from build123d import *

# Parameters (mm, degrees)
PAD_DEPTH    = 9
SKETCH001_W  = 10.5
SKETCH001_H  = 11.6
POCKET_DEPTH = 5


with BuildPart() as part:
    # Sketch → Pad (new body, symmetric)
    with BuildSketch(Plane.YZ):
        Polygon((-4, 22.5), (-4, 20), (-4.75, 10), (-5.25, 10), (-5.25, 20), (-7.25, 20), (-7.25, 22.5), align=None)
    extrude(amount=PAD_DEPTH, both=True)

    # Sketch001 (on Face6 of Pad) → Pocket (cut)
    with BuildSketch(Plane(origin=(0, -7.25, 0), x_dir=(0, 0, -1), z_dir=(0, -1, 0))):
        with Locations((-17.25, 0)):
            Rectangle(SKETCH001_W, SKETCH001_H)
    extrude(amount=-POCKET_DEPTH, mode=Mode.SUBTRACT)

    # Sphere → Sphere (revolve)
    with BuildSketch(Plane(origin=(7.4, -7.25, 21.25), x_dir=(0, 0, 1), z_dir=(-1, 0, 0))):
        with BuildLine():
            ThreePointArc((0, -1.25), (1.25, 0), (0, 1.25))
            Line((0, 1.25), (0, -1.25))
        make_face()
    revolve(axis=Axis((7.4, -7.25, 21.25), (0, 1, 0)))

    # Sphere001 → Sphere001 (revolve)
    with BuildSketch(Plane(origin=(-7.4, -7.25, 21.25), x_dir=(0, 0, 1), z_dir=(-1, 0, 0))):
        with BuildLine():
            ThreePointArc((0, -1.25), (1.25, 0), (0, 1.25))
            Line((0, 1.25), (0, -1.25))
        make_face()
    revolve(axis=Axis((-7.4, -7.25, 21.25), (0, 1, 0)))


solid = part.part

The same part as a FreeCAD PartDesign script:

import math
import FreeCAD as App
import Part
import Sketcher

doc = App.newDocument("Part")
body = doc.addObject("PartDesign::Body", "Body")

# Sketch on YZ plane
sketch1 = body.newObject("Sketcher::SketchObject", "Sketch")
sketch1.AttachmentSupport = (doc.getObject("YZ_Plane"), [""])
sketch1.MapMode = "FlatFace"
sketch1.addGeometry(Part.LineSegment(App.Vector(-4, 20, 0), App.Vector(-4, 22.5, 0)), False)
sketch1.addGeometry(Part.LineSegment(App.Vector(-4, 22.5, 0), App.Vector(-7.2, 22.5, 0)), False)
sketch1.addGeometry(Part.LineSegment(App.Vector(-7.2, 22.5, 0), App.Vector(-7.2, 20, 0)), False)
sketch1.addGeometry(Part.LineSegment(App.Vector(-7.2, 20, 0), App.Vector(-5.2, 20, 0)), False)
sketch1.addGeometry(Part.LineSegment(App.Vector(-5.2, 20, 0), App.Vector(-5.2, 10, 0)), False)
sketch1.addGeometry(Part.LineSegment(App.Vector(-5.2, 10, 0), App.Vector(-4.8, 10, 0)), False)
sketch1.addGeometry(Part.LineSegment(App.Vector(-4.8, 10, 0), App.Vector(-4, 20, 0)), False)
sketch1.addConstraint(Sketcher.Constraint("Coincident", 0, 2, 1, 1))
sketch1.addConstraint(Sketcher.Constraint("Coincident", 1, 2, 2, 1))
sketch1.addConstraint(Sketcher.Constraint("Coincident", 2, 2, 3, 1))
sketch1.addConstraint(Sketcher.Constraint("Coincident", 3, 2, 4, 1))
sketch1.addConstraint(Sketcher.Constraint("Coincident", 4, 2, 5, 1))
sketch1.addConstraint(Sketcher.Constraint("Coincident", 5, 2, 6, 1))
sketch1.addConstraint(Sketcher.Constraint("Coincident", 6, 2, 0, 1))
sketch1.addConstraint(Sketcher.Constraint("Vertical", 0))
sketch1.addConstraint(Sketcher.Constraint("Horizontal", 1))
sketch1.addConstraint(Sketcher.Constraint("Vertical", 2))
sketch1.addConstraint(Sketcher.Constraint("Horizontal", 3))
sketch1.addConstraint(Sketcher.Constraint("Vertical", 4))
sketch1.addConstraint(Sketcher.Constraint("Horizontal", 5))
sketch1.addConstraint(Sketcher.Constraint("Horizontal", 3, 2, 6, 2))
sketch1.addConstraint(Sketcher.Constraint("DistanceX", 3, 1, 3, 2, 2.0))
sketch1.addConstraint(Sketcher.Constraint("DistanceY", 4, 2, 4, 1, 10.0))
sketch1.addConstraint(Sketcher.Constraint("DistanceX", 5, 1, 5, 2, 0.5))
sketch1.addConstraint(Sketcher.Constraint("DistanceY", 0, 1, 0, 2, 2.5))
sketch1.addConstraint(Sketcher.Constraint("DistanceX", 0, 2, -1, 1, 4.0))
sketch1.addConstraint(Sketcher.Constraint("DistanceY", -1, 1, 2, 2, 20.0))
sketch1.addConstraint(Sketcher.Constraint("DistanceX", 1, 2, 1, 1, 3.25))
pad1 = body.newObject("PartDesign::Pad", "Pad")
pad1.Profile = sketch1
pad1.Length = 18
pad1.Midplane = True

# Sketch on XZ plane
sketch2 = body.newObject("Sketcher::SketchObject", "Sketch001")
sketch2.AttachmentSupport = (doc.getObject("XZ_Plane"), [""])
sketch2.MapMode = "FlatFace"
sketch2.AttachmentOffset = App.Placement(App.Vector(0, 0, 7.25), App.Rotation())
sketch2.addGeometry(Part.LineSegment(App.Vector(6, 22, 0), App.Vector(-6, 22, 0)), False)
sketch2.addGeometry(Part.LineSegment(App.Vector(-6, 22, 0), App.Vector(-6, 12, 0)), False)
sketch2.addGeometry(Part.LineSegment(App.Vector(-6, 12, 0), App.Vector(6, 12, 0)), False)
sketch2.addGeometry(Part.LineSegment(App.Vector(6, 12, 0), App.Vector(6, 22, 0)), False)
sketch2.addConstraint(Sketcher.Constraint("Coincident", 0, 2, 1, 1))
sketch2.addConstraint(Sketcher.Constraint("Coincident", 1, 2, 2, 1))
sketch2.addConstraint(Sketcher.Constraint("Coincident", 2, 2, 3, 1))
sketch2.addConstraint(Sketcher.Constraint("Coincident", 3, 2, 0, 1))
sketch2.addConstraint(Sketcher.Constraint("Horizontal", 0))
sketch2.addConstraint(Sketcher.Constraint("Vertical", 1))
sketch2.addConstraint(Sketcher.Constraint("Horizontal", 2))
sketch2.addConstraint(Sketcher.Constraint("Vertical", 3))
sketch2.addConstraint(Sketcher.Constraint("DistanceX", 0, 2, 0, 1, 11.6))
sketch2.addConstraint(Sketcher.Constraint("DistanceY", 1, 2, 1, 1, 10.5))
sketch2.addConstraint(Sketcher.Constraint("DistanceY", -1, 1, 1, 2, 12.0))
sketch2.addConstraint(Sketcher.Constraint("DistanceX", 0, 2, -1, 1, 5.8))
pocket1 = body.newObject("PartDesign::Pocket", "Pocket")
pocket1.Profile = sketch2
pocket1.Length = 5

# Sketch on YZ plane
sketch3 = body.newObject("Sketcher::SketchObject", "Sketch002")
sketch3.AttachmentSupport = (doc.getObject("YZ_Plane"), [""])
sketch3.MapMode = "FlatFace"
sketch3.AttachmentOffset = App.Placement(App.Vector(0, 0, 7.4), App.Rotation())
sketch3.addGeometry(Part.ArcOfCircle(Part.Circle(App.Vector(-7.2, 21.2, 0), App.Vector(0, 0, 1), 1.2), math.radians(0), math.radians(180)), False)
sketch3.addGeometry(Part.LineSegment(App.Vector(-6, 21.2, 0), App.Vector(-8.5, 21.2, 0)), False)
sketch3.addGeometry(Part.LineSegment(App.Vector(-8.5, 21.2, 0), App.Vector(-6, 21.2, 0)), True)  # axis
sketch3.addConstraint(Sketcher.Constraint("Coincident", 0, 1, 1, 1))
sketch3.addConstraint(Sketcher.Constraint("Coincident", 1, 2, 0, 2))
sketch3.addConstraint(Sketcher.Constraint("Horizontal", 1))
sketch3.addConstraint(Sketcher.Constraint("Horizontal", 2))
sketch3.addConstraint(Sketcher.Constraint("Coincident", 2, 1, 1, 2))
sketch3.addConstraint(Sketcher.Constraint("Equal", 1, 2))
sketch3.addConstraint(Sketcher.Constraint("Radius", 0, 1.25))
sketch3.addConstraint(Sketcher.Constraint("DistanceX", 0, 1, -1, 1, 6.0))
sketch3.addConstraint(Sketcher.Constraint("DistanceY", -1, 1, 0, 3, 21.25))
sketch3.addConstraint(Sketcher.Constraint("DistanceY", -1, 1, 0, 1, 21.25))
revolution = body.newObject("PartDesign::Revolution", "Revolution")
revolution.Profile = sketch3
revolution.ReferenceAxis = (sketch3, ["Axis0"])
revolution.Angle = 360

# Sketch on YZ plane
sketch4 = body.newObject("Sketcher::SketchObject", "Sketch003")
sketch4.AttachmentSupport = (doc.getObject("YZ_Plane"), [""])
sketch4.MapMode = "FlatFace"
sketch4.AttachmentOffset = App.Placement(App.Vector(0, 0, -7.4), App.Rotation())
sketch4.addGeometry(Part.ArcOfCircle(Part.Circle(App.Vector(-7.2, 21.2, 0), App.Vector(0, 0, 1), 1.2), math.radians(0), math.radians(180)), False)
sketch4.addGeometry(Part.LineSegment(App.Vector(-6, 21.2, 0), App.Vector(-8.5, 21.2, 0)), False)
sketch4.addGeometry(Part.LineSegment(App.Vector(-8.5, 21.2, 0), App.Vector(-6, 21.2, 0)), True)  # axis
sketch4.addConstraint(Sketcher.Constraint("Coincident", 0, 1, 1, 1))
sketch4.addConstraint(Sketcher.Constraint("Coincident", 1, 2, 0, 2))
sketch4.addConstraint(Sketcher.Constraint("Horizontal", 1))
sketch4.addConstraint(Sketcher.Constraint("Horizontal", 2))
sketch4.addConstraint(Sketcher.Constraint("Coincident", 2, 1, 1, 2))
sketch4.addConstraint(Sketcher.Constraint("Equal", 1, 2))
sketch4.addConstraint(Sketcher.Constraint("Radius", 0, 1.25))
sketch4.addConstraint(Sketcher.Constraint("DistanceX", 0, 1, -1, 1, 6.0))
sketch4.addConstraint(Sketcher.Constraint("DistanceY", -1, 1, 0, 3, 21.25))
sketch4.addConstraint(Sketcher.Constraint("DistanceY", -1, 1, 0, 1, 21.25))
revolution2 = body.newObject("PartDesign::Revolution", "Revolution001")
revolution2.Profile = sketch4
revolution2.ReferenceAxis = (sketch4, ["Axis0"])
revolution2.Angle = 360

doc.recompute()
